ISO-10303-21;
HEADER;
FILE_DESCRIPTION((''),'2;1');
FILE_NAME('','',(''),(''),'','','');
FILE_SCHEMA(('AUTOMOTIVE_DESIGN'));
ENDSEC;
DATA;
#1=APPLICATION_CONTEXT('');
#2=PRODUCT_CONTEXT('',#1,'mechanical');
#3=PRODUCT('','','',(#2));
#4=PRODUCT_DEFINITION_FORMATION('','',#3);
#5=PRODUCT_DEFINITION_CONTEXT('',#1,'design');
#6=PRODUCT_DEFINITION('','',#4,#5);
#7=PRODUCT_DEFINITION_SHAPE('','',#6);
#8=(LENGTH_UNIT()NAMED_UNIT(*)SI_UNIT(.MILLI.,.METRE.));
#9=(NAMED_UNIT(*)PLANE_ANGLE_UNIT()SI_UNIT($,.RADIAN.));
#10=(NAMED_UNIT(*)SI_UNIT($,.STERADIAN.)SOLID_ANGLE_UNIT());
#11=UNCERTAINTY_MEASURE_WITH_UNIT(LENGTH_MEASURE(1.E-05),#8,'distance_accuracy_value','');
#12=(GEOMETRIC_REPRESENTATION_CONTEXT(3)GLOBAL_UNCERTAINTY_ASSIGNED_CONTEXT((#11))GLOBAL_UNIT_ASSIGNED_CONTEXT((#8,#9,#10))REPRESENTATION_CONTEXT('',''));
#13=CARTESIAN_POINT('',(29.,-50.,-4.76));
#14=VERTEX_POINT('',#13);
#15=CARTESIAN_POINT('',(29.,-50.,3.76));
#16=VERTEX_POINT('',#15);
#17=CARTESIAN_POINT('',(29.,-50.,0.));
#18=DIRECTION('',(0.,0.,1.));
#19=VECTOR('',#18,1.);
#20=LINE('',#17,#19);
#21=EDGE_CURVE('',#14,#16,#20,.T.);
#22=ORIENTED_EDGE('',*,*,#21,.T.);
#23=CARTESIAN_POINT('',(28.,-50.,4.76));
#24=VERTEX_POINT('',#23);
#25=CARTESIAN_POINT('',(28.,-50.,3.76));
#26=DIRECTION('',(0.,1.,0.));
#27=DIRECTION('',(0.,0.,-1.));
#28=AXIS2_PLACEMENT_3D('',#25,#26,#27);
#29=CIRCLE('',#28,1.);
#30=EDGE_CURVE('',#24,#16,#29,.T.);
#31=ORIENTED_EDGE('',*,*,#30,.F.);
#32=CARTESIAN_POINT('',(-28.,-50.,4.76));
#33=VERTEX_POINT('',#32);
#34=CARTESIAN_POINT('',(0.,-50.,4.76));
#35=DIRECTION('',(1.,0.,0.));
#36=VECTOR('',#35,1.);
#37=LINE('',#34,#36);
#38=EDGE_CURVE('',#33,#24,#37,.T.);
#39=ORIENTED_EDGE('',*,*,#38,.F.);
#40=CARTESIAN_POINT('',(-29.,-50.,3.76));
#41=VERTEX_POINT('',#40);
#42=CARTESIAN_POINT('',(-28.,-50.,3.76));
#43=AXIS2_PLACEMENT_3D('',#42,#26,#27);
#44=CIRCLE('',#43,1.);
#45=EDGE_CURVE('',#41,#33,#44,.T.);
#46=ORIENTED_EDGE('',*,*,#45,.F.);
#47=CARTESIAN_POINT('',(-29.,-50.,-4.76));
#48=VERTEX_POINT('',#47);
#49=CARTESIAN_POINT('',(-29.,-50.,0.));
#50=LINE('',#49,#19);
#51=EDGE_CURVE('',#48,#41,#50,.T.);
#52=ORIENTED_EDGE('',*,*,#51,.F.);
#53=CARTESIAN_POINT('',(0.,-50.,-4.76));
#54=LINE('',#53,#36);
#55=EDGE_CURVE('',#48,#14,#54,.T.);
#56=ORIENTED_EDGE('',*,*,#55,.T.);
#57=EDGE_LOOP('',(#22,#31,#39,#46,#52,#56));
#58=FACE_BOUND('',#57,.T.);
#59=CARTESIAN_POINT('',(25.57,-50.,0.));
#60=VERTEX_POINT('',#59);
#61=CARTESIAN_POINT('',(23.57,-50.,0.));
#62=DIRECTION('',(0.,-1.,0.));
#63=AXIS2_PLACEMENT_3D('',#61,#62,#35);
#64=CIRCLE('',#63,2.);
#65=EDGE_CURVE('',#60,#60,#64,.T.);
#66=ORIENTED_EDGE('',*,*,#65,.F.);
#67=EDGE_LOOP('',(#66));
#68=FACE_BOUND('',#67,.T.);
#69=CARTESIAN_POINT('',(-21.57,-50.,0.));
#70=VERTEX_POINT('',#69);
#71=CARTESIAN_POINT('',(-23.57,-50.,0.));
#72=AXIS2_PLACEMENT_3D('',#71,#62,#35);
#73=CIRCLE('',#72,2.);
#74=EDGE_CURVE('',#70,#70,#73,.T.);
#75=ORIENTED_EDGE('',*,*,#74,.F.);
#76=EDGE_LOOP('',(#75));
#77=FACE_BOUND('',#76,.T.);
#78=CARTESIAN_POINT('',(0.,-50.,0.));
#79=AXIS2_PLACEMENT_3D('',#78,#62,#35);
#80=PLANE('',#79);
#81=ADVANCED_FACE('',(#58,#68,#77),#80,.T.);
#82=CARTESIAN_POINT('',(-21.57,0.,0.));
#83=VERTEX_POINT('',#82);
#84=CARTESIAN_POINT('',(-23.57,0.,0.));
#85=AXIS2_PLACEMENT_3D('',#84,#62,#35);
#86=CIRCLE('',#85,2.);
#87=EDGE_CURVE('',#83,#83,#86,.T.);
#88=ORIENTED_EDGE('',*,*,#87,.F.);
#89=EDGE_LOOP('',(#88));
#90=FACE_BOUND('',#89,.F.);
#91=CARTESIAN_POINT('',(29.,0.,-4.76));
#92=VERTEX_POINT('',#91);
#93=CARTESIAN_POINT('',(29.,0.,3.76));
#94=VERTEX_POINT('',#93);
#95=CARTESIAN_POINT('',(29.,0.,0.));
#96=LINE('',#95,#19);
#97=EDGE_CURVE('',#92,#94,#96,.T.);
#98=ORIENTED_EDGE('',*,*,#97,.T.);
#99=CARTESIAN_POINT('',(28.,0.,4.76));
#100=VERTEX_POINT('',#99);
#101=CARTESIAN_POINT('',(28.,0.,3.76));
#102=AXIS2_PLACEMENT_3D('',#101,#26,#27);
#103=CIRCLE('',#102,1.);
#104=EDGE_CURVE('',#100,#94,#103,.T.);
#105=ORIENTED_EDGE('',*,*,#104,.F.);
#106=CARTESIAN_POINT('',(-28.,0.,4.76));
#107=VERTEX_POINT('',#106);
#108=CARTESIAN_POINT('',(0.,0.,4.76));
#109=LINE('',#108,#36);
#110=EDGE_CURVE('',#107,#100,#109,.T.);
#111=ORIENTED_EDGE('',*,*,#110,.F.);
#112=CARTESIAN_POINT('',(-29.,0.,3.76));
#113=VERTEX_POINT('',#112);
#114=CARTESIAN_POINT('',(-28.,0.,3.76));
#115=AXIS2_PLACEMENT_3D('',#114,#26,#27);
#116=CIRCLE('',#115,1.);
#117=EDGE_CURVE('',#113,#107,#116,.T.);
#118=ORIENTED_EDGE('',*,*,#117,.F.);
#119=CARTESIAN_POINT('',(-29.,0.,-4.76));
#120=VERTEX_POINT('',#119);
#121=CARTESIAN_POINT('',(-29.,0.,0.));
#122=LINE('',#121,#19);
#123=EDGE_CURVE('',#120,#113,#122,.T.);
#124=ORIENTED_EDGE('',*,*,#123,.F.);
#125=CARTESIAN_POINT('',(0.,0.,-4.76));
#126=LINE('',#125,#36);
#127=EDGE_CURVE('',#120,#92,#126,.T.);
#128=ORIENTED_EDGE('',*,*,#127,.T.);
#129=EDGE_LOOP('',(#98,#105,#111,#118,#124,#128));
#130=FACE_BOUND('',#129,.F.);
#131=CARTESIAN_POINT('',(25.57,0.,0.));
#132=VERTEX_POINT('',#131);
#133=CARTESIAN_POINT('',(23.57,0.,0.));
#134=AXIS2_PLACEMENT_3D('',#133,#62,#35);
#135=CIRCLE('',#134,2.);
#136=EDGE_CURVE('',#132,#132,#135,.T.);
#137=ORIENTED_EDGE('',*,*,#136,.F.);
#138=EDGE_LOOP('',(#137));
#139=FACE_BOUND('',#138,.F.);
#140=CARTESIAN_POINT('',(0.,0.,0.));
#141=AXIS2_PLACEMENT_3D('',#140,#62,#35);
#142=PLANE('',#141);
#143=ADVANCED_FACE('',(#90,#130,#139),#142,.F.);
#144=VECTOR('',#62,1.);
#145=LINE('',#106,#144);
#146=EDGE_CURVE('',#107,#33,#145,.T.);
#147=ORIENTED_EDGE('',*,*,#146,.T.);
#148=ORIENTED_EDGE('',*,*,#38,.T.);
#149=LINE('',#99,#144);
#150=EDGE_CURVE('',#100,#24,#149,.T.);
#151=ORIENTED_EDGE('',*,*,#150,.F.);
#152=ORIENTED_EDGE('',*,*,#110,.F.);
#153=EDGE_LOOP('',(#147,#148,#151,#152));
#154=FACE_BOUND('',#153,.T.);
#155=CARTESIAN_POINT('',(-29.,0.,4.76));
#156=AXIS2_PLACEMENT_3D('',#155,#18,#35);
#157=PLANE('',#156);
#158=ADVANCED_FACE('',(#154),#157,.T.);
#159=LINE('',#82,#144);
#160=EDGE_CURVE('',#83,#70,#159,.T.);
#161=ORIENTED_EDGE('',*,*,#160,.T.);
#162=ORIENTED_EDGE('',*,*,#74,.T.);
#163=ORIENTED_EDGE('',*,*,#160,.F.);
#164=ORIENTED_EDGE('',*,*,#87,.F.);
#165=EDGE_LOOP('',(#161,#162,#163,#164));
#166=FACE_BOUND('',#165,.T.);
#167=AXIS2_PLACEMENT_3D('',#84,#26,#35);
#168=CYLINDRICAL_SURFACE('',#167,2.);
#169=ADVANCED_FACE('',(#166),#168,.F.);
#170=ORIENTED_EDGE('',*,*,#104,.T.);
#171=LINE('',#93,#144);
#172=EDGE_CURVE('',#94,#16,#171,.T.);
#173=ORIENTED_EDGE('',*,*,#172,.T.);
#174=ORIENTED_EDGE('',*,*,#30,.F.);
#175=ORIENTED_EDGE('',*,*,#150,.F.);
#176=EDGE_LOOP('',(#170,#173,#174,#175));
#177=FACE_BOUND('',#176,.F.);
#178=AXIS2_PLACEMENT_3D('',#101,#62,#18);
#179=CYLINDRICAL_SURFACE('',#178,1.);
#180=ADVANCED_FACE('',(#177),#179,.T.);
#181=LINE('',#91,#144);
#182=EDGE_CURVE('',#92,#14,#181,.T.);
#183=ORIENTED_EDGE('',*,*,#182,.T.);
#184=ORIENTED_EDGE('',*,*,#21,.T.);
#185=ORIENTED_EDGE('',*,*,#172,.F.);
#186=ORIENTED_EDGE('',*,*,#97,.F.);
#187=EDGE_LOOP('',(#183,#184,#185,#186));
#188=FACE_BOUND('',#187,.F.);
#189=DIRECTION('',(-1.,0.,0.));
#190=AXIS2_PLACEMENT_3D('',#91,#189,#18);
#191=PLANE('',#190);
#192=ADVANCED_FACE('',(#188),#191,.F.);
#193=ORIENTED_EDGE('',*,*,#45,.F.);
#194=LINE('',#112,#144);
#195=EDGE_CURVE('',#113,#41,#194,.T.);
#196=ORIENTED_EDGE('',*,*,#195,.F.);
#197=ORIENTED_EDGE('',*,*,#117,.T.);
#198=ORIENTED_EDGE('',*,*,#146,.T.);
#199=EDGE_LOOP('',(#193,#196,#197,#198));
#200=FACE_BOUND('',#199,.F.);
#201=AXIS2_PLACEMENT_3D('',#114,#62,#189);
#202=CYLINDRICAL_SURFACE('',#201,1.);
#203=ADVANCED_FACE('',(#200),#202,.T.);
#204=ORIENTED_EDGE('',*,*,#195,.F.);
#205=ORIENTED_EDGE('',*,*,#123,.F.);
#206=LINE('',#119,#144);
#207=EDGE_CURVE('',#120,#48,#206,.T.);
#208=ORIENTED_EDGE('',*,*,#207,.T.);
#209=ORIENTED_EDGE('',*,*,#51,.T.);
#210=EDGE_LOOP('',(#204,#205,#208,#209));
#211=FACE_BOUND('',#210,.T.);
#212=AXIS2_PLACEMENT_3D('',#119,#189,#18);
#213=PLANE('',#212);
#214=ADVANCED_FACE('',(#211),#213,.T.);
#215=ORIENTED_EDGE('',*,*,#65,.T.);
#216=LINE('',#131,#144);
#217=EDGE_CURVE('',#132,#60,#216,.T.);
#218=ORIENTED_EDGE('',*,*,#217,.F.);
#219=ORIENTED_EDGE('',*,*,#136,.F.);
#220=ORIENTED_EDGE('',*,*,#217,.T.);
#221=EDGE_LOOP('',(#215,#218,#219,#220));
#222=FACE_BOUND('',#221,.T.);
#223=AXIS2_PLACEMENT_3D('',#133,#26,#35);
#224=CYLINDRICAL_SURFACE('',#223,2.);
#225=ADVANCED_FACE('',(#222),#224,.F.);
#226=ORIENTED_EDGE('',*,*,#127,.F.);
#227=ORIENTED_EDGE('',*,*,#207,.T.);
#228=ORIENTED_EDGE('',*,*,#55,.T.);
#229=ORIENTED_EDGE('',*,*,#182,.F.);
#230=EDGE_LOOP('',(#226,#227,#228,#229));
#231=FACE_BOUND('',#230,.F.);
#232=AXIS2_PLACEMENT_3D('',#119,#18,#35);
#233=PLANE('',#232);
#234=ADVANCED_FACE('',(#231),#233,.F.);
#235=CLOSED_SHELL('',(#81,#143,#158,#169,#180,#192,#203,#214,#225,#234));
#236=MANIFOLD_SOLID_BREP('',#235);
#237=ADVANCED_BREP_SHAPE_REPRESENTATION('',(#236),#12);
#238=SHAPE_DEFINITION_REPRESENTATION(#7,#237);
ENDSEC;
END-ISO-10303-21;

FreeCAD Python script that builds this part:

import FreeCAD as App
import Part
import Sketcher
Q = App.Units.Quantity


def edges_at(feature, points):
    """Names of the edges that pass closest to the given points."""
    edges = feature.Shape.Edges
    near = lambda p: min(range(len(edges)), key=lambda i: edges[i].distToShape(Part.Vertex(*p))[0])
    return sorted({f"Edge{near(p) + 1}" for p in points})

doc = App.newDocument("Part")
params = doc.addObject("Spreadsheet::Sheet", "Params")
for row, (alias, value) in enumerate([
    ("sketch1_diameter", "4 mm"),
    ("sketch1_width", "58 mm"),
    ("sketch1_height", "9.52 mm"),
    ("pad1_length", "50 mm"),
    ("fillet_radius", "1 mm"),
], start=1):
    params.set(f"A{row}", alias)
    params.set(f"B{row}", "=" + value)
    params.setAlias(f"B{row}", alias)

body = doc.addObject("PartDesign::Body", "Body")

# Sketch on XZ plane
sketch1 = body.newObject("Sketcher::SketchObject", "Sketch")
sketch1.AttachmentSupport = (doc.getObject("XZ_Plane"), [""])
sketch1.MapMode = "FlatFace"
sketch1.addGeometry([
    Part.LineSegment(App.Vector(-29, 4.8, 0), App.Vector(-29, -4.8, 0)),  # 0
    Part.LineSegment(App.Vector(-29, -4.8, 0), App.Vector(29, -4.8, 0)),  # 1
    Part.LineSegment(App.Vector(29, -4.8, 0), App.Vector(29, 4.8, 0)),  # 2
    Part.LineSegment(App.Vector(29, 4.8, 0), App.Vector(-29, 4.8, 0)),  # 3
    Part.Circle(App.Vector(-23.6, 0, 0), App.Vector(0, 0, 1), 2),  # 4
    Part.Circle(App.Vector(23.6, 0, 0), App.Vector(0, 0, 1), 2),  # 5
], False)
sketch1.addConstraint([
    Sketcher.Constraint("Coincident", 0, 2, 1, 1),
    Sketcher.Constraint("Coincident", 1, 2, 2, 1),
    Sketcher.Constraint("Coincident", 2, 2, 3, 1),
    Sketcher.Constraint("Coincident", 3, 2, 0, 1),
    Sketcher.Constraint("Vertical", 0),
    Sketcher.Constraint("Horizontal", 1),
    Sketcher.Constraint("Vertical", 2),
    Sketcher.Constraint("Horizontal", 3),
    Sketcher.Constraint("Equal", 4, 5),
    Sketcher.Constraint("Symmetric", 4, 3, 5, 3, -1, 1),
    Sketcher.Constraint("Symmetric", 0, 2, 2, 2, -1, 1),
    Sketcher.Constraint("PointOnObject", 4, 3, -1),
    Sketcher.Constraint("Diameter", 4, Q("4 mm")),
    Sketcher.Constraint("DistanceX", 1, 1, 1, 2, Q("58 mm")),
    Sketcher.Constraint("DistanceY", 0, 2, 0, 1, Q("9.52 mm")),
    Sketcher.Constraint("DistanceX", 4, 3, -1, 1, Q("23.57 mm")),
])
sketch1.setExpression("Constraints[12]", "Params.sketch1_diameter")
sketch1.setExpression("Constraints[13]", "Params.sketch1_width")
sketch1.setExpression("Constraints[14]", "Params.sketch1_height")
pad1 = body.newObject("PartDesign::Pad", "Pad")
pad1.Profile = sketch1
pad1.setExpression("Length", "Params.pad1_length")
doc.recompute()

fillet = body.newObject("PartDesign::Fillet", "Fillet")
fillet.Base = (pad1, edges_at(pad1, [(29, -25, 4.76), (-29, -25, 4.76)]))
fillet.setExpression("Radius", "Params.fillet_radius")

doc.recompute()
